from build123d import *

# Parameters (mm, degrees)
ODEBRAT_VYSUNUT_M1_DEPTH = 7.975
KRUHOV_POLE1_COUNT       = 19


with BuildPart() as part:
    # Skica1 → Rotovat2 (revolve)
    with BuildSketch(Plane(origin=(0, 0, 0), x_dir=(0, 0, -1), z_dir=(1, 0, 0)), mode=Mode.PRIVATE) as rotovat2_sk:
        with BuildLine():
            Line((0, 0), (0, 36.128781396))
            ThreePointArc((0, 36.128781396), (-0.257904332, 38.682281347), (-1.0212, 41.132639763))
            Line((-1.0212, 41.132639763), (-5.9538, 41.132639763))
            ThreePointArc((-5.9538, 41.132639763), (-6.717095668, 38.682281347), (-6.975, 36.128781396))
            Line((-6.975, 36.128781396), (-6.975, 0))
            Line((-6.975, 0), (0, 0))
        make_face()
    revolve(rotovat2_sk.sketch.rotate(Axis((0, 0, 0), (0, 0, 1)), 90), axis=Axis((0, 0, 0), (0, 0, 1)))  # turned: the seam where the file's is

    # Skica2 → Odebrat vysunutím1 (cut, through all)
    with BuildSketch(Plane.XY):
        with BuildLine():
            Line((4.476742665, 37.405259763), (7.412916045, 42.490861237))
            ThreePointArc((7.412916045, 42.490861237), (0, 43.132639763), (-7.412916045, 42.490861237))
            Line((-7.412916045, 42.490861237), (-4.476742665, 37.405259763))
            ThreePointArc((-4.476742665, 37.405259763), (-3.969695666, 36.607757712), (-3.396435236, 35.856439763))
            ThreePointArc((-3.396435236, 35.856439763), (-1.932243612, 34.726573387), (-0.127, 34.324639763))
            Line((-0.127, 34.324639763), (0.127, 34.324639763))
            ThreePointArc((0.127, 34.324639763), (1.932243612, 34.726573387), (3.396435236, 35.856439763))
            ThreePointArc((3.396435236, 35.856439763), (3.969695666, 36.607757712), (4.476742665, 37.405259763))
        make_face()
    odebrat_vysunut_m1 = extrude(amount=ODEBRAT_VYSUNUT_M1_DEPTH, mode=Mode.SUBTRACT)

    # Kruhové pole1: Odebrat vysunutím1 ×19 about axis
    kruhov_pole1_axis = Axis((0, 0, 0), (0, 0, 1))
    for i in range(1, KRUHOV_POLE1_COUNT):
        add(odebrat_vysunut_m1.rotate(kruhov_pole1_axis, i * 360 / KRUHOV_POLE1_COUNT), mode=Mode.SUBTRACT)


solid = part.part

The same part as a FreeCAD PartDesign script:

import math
import FreeCAD as App
import Part
import Sketcher
Q = App.Units.Quantity

doc = App.newDocument("Part")
body = doc.addObject("PartDesign::Body", "Body")

# Sketch on YZ plane
sketch1 = body.newObject("Sketcher::SketchObject", "Sketch")
sketch1.AttachmentSupport = (doc.getObject("YZ_Plane"), [""])
sketch1.MapMode = "FlatFace"
sketch1.addGeometry(Part.LineSegment(App.Vector(0, 0, 0), App.Vector(36.128781, 0, 0)), False)
sketch1.addGeometry(Part.ArcOfCircle(Part.Circle(App.Vector(36.128781, 12.77, 0), App.Vector(0, 0, 1), 12.77), math.radians(-90), math.radians(-66.930662)), False)
sketch1.addGeometry(Part.LineSegment(App.Vector(41.13264, 1.0212, 0), App.Vector(41.13264, 5.9538, 0)), False)
sketch1.addGeometry(Part.ArcOfCircle(Part.Circle(App.Vector(36.128781, -5.795, 0), App.Vector(0, 0, 1), 12.77), math.radians(66.930662), math.radians(90)), False)
sketch1.addGeometry(Part.LineSegment(App.Vector(36.128781, 6.975, 0), App.Vector(0, 6.975, 0)), False)
sketch1.addGeometry(Part.LineSegment(App.Vector(0, 6.975, 0), App.Vector(0, 0, 0)), False)
sketch1.addConstraint(Sketcher.Constraint("Tangent", 0, 2, 1, 1))
sketch1.addConstraint(Sketcher.Constraint("Coincident", 1, 2, 2, 1))
sketch1.addConstraint(Sketcher.Constraint("Coincident", 2, 2, 3, 1))
sketch1.addConstraint(Sketcher.Constraint("Tangent", 3, 2, 4, 1))
sketch1.addConstraint(Sketcher.Constraint("Coincident", 4, 2, 5, 1))
sketch1.addConstraint(Sketcher.Constraint("Coincident", 5, 2, 0, 1))
sketch1.addConstraint(Sketcher.Constraint("Horizontal", 0))
sketch1.addConstraint(Sketcher.Constraint("Vertical", 2))
sketch1.addConstraint(Sketcher.Constraint("Horizontal", 4))
sketch1.addConstraint(Sketcher.Constraint("Vertical", 5))
sketch1.addConstraint(Sketcher.Constraint("Coincident", 5, 2, -1, 1))
sketch1.addConstraint(Sketcher.Constraint("Equal", 1, 3))
sketch1.addConstraint(Sketcher.Constraint("Vertical", 1, 3, 3, 3))
sketch1.addConstraint(Sketcher.Constraint("Radius", 1, Q("12.77 mm")))
sketch1.addConstraint(Sketcher.Constraint("DistanceY", 2, 1, 2, 2, Q("4.9326 mm")))
sketch1.addConstraint(Sketcher.Constraint("DistanceY", 5, 2, 5, 1, Q("6.975 mm")))
sketch1.addConstraint(Sketcher.Constraint("DistanceX", 0, 1, 0, 2, Q("36.128781 mm")))
revolution = body.newObject("PartDesign::Revolution", "Revolution")
revolution.Profile = sketch1
revolution.ReferenceAxis = (sketch1, ["V_Axis"])
revolution.Angle = 360

# Sketch on XY plane
sketch2 = body.newObject("Sketcher::SketchObject", "Sketch001")
sketch2.AttachmentSupport = (doc.getObject("XY_Plane"), [""])
sketch2.MapMode = "FlatFace"
sketch2.addGeometry(Part.LineSegment(App.Vector(4.476743, 37.40526, 0), App.Vector(7.412916, 42.490861, 0)), False)
sketch2.addGeometry(Part.ArcOfCircle(Part.Circle(App.Vector(0, 0, 0), App.Vector(0, 0, 1), 43.13264), math.radians(80.103829), math.radians(99.896171)), False)
sketch2.addGeometry(Part.LineSegment(App.Vector(-7.412916, 42.490861, 0), App.Vector(-4.476743, 37.40526, 0)), False)
sketch2.addGeometry(Part.ArcOfCircle(Part.Circle(App.Vector(5.104096, 42.93676, 0), App.Vector(0, 0, 1), 11.063), math.radians(-150), math.radians(-140.208181)), False)
sketch2.addGeometry(Part.ArcOfCircle(Part.Circle(App.Vector(-0.127, 38.57964, 0), App.Vector(0, 0, 1), 4.255), math.radians(-140.20818), math.radians(-90)), False)
sketch2.addGeometry(Part.LineSegment(App.Vector(-0.127, 34.32464, 0), App.Vector(0.127, 34.32464, 0)), False)
sketch2.addGeometry(Part.ArcOfCircle(Part.Circle(App.Vector(0.127, 38.57964, 0), App.Vector(0, 0, 1), 4.255), math.radians(-90), math.radians(-39.79182)), False)
sketch2.addGeometry(Part.ArcOfCircle(Part.Circle(App.Vector(-5.104096, 42.93676, 0), App.Vector(0, 0, 1), 11.063), math.radians(-39.791819), math.radians(-30)), False)
sketch2.addConstraint(Sketcher.Constraint("Coincident", 0, 2, 1, 1))
sketch2.addConstraint(Sketcher.Constraint("Coincident", 1, 2, 2, 1))
sketch2.addConstraint(Sketcher.Constraint("Tangent", 2, 2, 3, 1))
sketch2.addConstraint(Sketcher.Constraint("Tangent", 3, 2, 4, 1))
sketch2.addConstraint(Sketcher.Constraint("Tangent", 4, 2, 5, 1))
sketch2.addConstraint(Sketcher.Constraint("Tangent", 5, 2, 6, 1))
sketch2.addConstraint(Sketcher.Constraint("Tangent", 6, 2, 7, 1))
sketch2.addConstraint(Sketcher.Constraint("Tangent", 7, 2, 0, 1))
sketch2.addConstraint(Sketcher.Constraint("Horizontal", 5))
sketch2.addConstraint(Sketcher.Constraint("Coincident", 1, 3, -1, 1))
sketch2.addConstraint(Sketcher.Constraint("Equal", 4, 6))
sketch2.addConstraint(Sketcher.Constraint("Equal", 3, 7))
sketch2.addConstraint(Sketcher.Constraint("Symmetric", 3, 3, 7, 3, -2))
sketch2.addConstraint(Sketcher.Constraint("Horizontal", 0, 2, 1, 2))
sketch2.addConstraint(Sketcher.Constraint("Angle", 0, Q("60 deg")))
sketch2.addConstraint(Sketcher.Constraint("DistanceX", 5, 1, 5, 2, Q("0.01 in")))
sketch2.addConstraint(Sketcher.Constraint("Radius", 3, Q("11.063 mm")))
sketch2.addConstraint(Sketcher.Constraint("Radius", 4, Q("4.255 mm")))
sketch2.addConstraint(Sketcher.Constraint("Radius", 1, Q("43.13264 mm")))
sketch2.addConstraint(Sketcher.Constraint("DistanceY", 0, 2, 3, 3, Q("0.445899 mm")))
sketch2.addConstraint(Sketcher.Constraint("DistanceY", 3, 2, 4, 3, Q("2.7232 mm")))
pocket1 = body.newObject("PartDesign::Pocket", "Pocket")
pocket1.Profile = sketch2
pocket1.Type = "ThroughAll"
pocket1.Reversed = True
doc.recompute()

polarpattern = body.newObject("PartDesign::PolarPattern", "PolarPattern")
polarpattern.Originals = [pocket1]
polarpattern.Axis = (doc.getObject("Z_Axis"), [""])
polarpattern.Angle = 360
polarpattern.Occurrences = 19
body.Tip = polarpattern

doc.recompute()
